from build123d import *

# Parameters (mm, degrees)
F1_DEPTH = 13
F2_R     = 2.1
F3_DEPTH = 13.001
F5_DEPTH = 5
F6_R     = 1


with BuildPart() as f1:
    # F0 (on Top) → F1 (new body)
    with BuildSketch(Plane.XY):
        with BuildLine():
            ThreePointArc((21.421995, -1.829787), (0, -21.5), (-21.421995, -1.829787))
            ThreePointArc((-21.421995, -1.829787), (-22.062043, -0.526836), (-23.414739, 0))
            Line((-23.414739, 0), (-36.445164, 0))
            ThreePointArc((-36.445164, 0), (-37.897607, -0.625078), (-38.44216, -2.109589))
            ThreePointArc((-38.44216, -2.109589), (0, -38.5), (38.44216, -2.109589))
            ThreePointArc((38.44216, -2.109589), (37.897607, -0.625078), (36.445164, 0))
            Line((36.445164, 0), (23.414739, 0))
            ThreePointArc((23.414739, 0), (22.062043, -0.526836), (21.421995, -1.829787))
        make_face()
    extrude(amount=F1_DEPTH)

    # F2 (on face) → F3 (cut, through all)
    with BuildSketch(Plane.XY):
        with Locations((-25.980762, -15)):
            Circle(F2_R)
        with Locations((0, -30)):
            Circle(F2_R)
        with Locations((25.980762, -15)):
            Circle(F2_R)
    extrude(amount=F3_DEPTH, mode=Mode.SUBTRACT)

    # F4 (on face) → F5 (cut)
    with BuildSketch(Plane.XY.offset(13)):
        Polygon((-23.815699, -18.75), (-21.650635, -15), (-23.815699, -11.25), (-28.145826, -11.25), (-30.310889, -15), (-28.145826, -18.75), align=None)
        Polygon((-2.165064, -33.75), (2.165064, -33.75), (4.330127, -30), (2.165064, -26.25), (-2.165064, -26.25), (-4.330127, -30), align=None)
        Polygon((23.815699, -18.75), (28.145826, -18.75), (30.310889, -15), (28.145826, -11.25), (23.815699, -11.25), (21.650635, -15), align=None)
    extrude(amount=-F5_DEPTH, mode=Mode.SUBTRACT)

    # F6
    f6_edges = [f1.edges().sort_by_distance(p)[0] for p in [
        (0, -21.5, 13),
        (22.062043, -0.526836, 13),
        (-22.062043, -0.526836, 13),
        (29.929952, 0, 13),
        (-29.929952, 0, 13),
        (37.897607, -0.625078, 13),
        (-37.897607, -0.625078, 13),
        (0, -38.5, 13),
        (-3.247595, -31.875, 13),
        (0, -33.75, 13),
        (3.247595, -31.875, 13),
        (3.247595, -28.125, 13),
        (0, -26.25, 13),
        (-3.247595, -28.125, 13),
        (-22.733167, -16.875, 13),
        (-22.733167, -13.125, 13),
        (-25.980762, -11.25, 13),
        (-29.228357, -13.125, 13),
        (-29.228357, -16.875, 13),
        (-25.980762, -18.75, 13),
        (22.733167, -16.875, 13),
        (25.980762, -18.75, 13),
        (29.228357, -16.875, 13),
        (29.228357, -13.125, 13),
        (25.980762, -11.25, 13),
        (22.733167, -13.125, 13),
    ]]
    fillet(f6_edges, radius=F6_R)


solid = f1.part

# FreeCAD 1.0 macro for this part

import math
import FreeCAD as App
import Part
import Sketcher
from FreeCAD import Vector
Q = App.Units.Quantity


def edges_at(feature, points):
    """Names of the edges that pass closest to the given points."""
    edges = feature.Shape.Edges
    near = lambda p: min(range(len(edges)), key=lambda i: edges[i].distToShape(Part.Vertex(*p))[0])
    return sorted({f"Edge{near(p) + 1}" for p in points})


def add_polygon(sketch, points):
    """Adds a closed chain of lines whose ends are joined by coincident constraints."""
    first, n = sketch.GeometryCount, len(points)
    for a, b in zip(points, points[1:] + points[:1]):
        sketch.addGeometry(Part.LineSegment(App.Vector(*a, 0), App.Vector(*b, 0)), False)
    for i in range(n):
        sketch.addConstraint(Sketcher.Constraint("Coincident", first + i, 2, first + (i + 1) % n, 1))

doc = App.newDocument("Part")
body = doc.addObject("PartDesign::Body", "Body")

# Sketch on XY plane
sketch1 = doc.addObject("Sketcher::SketchObject", "Sketch")
body.addObject(sketch1)
sketch1.AttachmentSupport = (doc.XY_Plane, [""])
sketch1.MapMode = "FlatFace"
sketch1.addGeometry([
    Part.ArcOfCircle(Part.Circle(Vector(0, 0, 0), Vector(0, 0, 1), 21.5), math.radians(-175.117859), math.radians(-4.882141)),  # 0
    Part.ArcOfCircle(Part.Circle(Vector(-23.41474, -2.000001, 0), Vector(0, 0, 1), 2.000001), math.radians(4.882188), math.radians(89.999969)),  # 1
    Part.LineSegment(Vector(-23.414739, 0, 0), Vector(-36.445164, 0, 0)),  # 2
    Part.ArcOfCircle(Part.Circle(Vector(-36.445164, -2, 0), Vector(0, 0, 1), 2), math.radians(89.999994), math.radians(183.141053)),  # 3
    Part.ArcOfCircle(Part.Circle(Vector(0, 0, 0), Vector(0, 0, 1), 38.5), math.radians(-176.858932), math.radians(-3.141068)),  # 4
    Part.ArcOfCircle(Part.Circle(Vector(36.445164, -2, 0), Vector(0, 0, 1), 2), math.radians(-3.141053), math.radians(90.000006)),  # 5
    Part.LineSegment(Vector(36.445164, 0, 0), Vector(23.414739, 0, 0)),  # 6
    Part.ArcOfCircle(Part.Circle(Vector(23.41474, -2.000001, 0), Vector(0, 0, 1), 2.000001), math.radians(90.000031), math.radians(175.117812)),  # 7
], False)
sketch1.addConstraint([
    Sketcher.Constraint("Tangent", 0, 1, 1, 1),
    Sketcher.Constraint("Tangent", 1, 2, 2, 1),
    Sketcher.Constraint("Tangent", 2, 2, 3, 1),
    Sketcher.Constraint("Tangent", 3, 2, 4, 1),
    Sketcher.Constraint("Tangent", 4, 2, 5, 1),
    Sketcher.Constraint("Tangent", 5, 2, 6, 1),
    Sketcher.Constraint("Tangent", 6, 2, 7, 1),
    Sketcher.Constraint("Tangent", 7, 2, 0, 2),
    Sketcher.Constraint("Horizontal", 2),
    Sketcher.Constraint("Horizontal", 6),
    Sketcher.Constraint("Coincident", 0, 3, -1, 1),
    Sketcher.Constraint("Coincident", 4, 3, -1, 1),
    Sketcher.Constraint("Equal", 1, 3),
    Sketcher.Constraint("Equal", 3, 5),
    Sketcher.Constraint("Equal", 5, 7),
    Sketcher.Constraint("Symmetric", 2, 2, 5, 2, -1, 1),
    Sketcher.Constraint("Radius", 1, Q("2.000001 mm")),
    Sketcher.Constraint("Radius", 0, Q("21.5 mm")),
    Sketcher.Constraint("Radius", 4, Q("38.5 mm")),
])
pad1 = doc.addObject("PartDesign::Pad", "Pad")
body.addObject(pad1)
pad1.Profile = sketch1
pad1.Length = 13

# Sketch on XY plane
sketch2 = doc.addObject("Sketcher::SketchObject", "Sketch001")
body.addObject(sketch2)
sketch2.AttachmentSupport = (doc.XY_Plane, [""])
sketch2.MapMode = "FlatFace"
sketch2.addGeometry([
    Part.Circle(Vector(-25.980762, -15, 0), Vector(0, 0, 1), 2.1),
    Part.Circle(Vector(0, -30, 0), Vector(0, 0, 1), 2.1),
    Part.Circle(Vector(25.980762, -15, 0), Vector(0, 0, 1), 2.1),
], False)
sketch2.addConstraint([
    Sketcher.Constraint("Equal", 0, 1),
    Sketcher.Constraint("Equal", 1, 2),
    Sketcher.Constraint("Symmetric", 0, 3, 2, 3, -2),
    Sketcher.Constraint("PointOnObject", 1, 3, -2),
    Sketcher.Constraint("Diameter", 0, Q("4.2 mm")),
    Sketcher.Constraint("DistanceY", 0, 3, -1, 1, Q("15 mm")),
    Sketcher.Constraint("DistanceY", 1, 3, -1, 1, Q("30 mm")),
    Sketcher.Constraint("DistanceX", 0, 3, -1, 1, Q("25.980762 mm")),
])
pocket1 = doc.addObject("PartDesign::Pocket", "Pocket")
body.addObject(pocket1)
pocket1.Profile = sketch2
pocket1.Type = "ThroughAll"
pocket1.Reversed = True

# Sketch on XY plane
sketch3 = doc.addObject("Sketcher::SketchObject", "Sketch002")
body.addObject(sketch3)
sketch3.AttachmentSupport = (doc.XY_Plane, [""])
sketch3.MapMode = "FlatFace"
sketch3.AttachmentOffset = App.Placement(Vector(0, 0, 13), App.Rotation())
add_polygon(sketch3, [(-23.815699, -18.75), (-21.650635, -15), (-23.815699, -11.25), (-28.145826, -11.25), (-30.310889, -15), (-28.145826, -18.75)])  # lines 0-5
add_polygon(sketch3, [(-2.165064, -33.75), (2.165064, -33.75), (4.330127, -30), (2.165064, -26.25), (-2.165064, -26.25), (-4.330127, -30)])  # lines 6-11
add_polygon(sketch3, [(23.815699, -18.75), (28.145826, -18.75), (30.310889, -15), (28.145826, -11.25), (23.815699, -11.25), (21.650635, -15)])  # lines 12-17
sketch3.addConstraint([
    Sketcher.Constraint("Horizontal", 2),
    Sketcher.Constraint("Horizontal", 5),
    Sketcher.Constraint("Horizontal", 6),
    Sketcher.Constraint("Horizontal", 9),
    Sketcher.Constraint("Horizontal", 12),
    Sketcher.Constraint("Horizontal", 15),
    Sketcher.Constraint("Symmetric", 7, 2, 10, 2, -2),
    Sketcher.Constraint("Symmetric", 4, 2, 12, 2, -2),
    Sketcher.Constraint("Symmetric", 3, 2, 13, 2, -2),
    Sketcher.Constraint("Symmetric", 2, 2, 14, 2, -2),
    Sketcher.Constraint("Symmetric", 0, 2, 16, 2, -2),
    Sketcher.Constraint("Parallel", 0, 3),
    Sketcher.Constraint("Parallel", 1, 4),
    Sketcher.Constraint("Parallel", 3, 7),
    Sketcher.Constraint("Parallel", 4, 8),
    Sketcher.Constraint("Parallel", 7, 10),
    Sketcher.Constraint("Parallel", 8, 11),
    Sketcher.Constraint("Parallel", 10, 13),
    Sketcher.Constraint("Parallel", 13, 16),
    Sketcher.Constraint("Parallel", 14, 17),
    Sketcher.Constraint("Horizontal", 0, 2, 3, 2),
    Sketcher.Constraint("Vertical", 2, 2, 4, 2),
    Sketcher.Constraint("Vertical", 6, 2, 8, 2),
    Sketcher.Constraint("Equal", 5, 6),
    Sketcher.Constraint("Equal", 4, 7),
    Sketcher.Constraint("Angle", 0, Q("59.999994 deg")),
    Sketcher.Constraint("DistanceY", 0, 2, -1, 1, Q("15 mm")),
    Sketcher.Constraint("DistanceY", 7, 2, -1, 1, Q("30 mm")),
    Sketcher.Constraint("DistanceY", 4, 2, 2, 2, Q("7.5 mm")),
    Sketcher.Constraint("DistanceX", 6, 1, 6, 2, Q("4.330128 mm")),
    Sketcher.Constraint("DistanceX", 1, 2, -1, 1, Q("23.815699 mm")),
])
pocket2 = doc.addObject("PartDesign::Pocket", "Pocket001")
body.addObject(pocket2)
pocket2.Profile = sketch3
pocket2.Length = 5
doc.recompute()

fillet = doc.addObject("PartDesign::Fillet", "Fillet")
body.addObject(fillet)
fillet.Base = (pocket2, edges_at(pocket2, [
    (0, -21.5, 13),
    (22.062, -0.527, 13),
    (-22.062, -0.527, 13),
    (29.93, 0, 13),
    (-29.93, 0, 13),
    (37.898, -0.625, 13),
    (-37.898, -0.625, 13),
    (0, -38.5, 13),
    (-3.248, -31.875, 13),
    (0, -33.75, 13),
    (3.248, -31.875, 13),
    (3.248, -28.125, 13),
    (0, -26.25, 13),
    (-3.248, -28.125, 13),
    (-22.733, -16.875, 13),
    (-22.733, -13.125, 13),
    (-25.981, -11.25, 13),
    (-29.228, -13.125, 13),
    (-29.228, -16.875, 13),
    (-25.981, -18.75, 13),
    (22.733, -16.875, 13),
    (25.981, -18.75, 13),
    (29.228, -16.875, 13),
    (29.228, -13.125, 13),
    (25.981, -11.25, 13),
    (22.733, -13.125, 13),
]))
fillet.Radius = 1

doc.recompute()
